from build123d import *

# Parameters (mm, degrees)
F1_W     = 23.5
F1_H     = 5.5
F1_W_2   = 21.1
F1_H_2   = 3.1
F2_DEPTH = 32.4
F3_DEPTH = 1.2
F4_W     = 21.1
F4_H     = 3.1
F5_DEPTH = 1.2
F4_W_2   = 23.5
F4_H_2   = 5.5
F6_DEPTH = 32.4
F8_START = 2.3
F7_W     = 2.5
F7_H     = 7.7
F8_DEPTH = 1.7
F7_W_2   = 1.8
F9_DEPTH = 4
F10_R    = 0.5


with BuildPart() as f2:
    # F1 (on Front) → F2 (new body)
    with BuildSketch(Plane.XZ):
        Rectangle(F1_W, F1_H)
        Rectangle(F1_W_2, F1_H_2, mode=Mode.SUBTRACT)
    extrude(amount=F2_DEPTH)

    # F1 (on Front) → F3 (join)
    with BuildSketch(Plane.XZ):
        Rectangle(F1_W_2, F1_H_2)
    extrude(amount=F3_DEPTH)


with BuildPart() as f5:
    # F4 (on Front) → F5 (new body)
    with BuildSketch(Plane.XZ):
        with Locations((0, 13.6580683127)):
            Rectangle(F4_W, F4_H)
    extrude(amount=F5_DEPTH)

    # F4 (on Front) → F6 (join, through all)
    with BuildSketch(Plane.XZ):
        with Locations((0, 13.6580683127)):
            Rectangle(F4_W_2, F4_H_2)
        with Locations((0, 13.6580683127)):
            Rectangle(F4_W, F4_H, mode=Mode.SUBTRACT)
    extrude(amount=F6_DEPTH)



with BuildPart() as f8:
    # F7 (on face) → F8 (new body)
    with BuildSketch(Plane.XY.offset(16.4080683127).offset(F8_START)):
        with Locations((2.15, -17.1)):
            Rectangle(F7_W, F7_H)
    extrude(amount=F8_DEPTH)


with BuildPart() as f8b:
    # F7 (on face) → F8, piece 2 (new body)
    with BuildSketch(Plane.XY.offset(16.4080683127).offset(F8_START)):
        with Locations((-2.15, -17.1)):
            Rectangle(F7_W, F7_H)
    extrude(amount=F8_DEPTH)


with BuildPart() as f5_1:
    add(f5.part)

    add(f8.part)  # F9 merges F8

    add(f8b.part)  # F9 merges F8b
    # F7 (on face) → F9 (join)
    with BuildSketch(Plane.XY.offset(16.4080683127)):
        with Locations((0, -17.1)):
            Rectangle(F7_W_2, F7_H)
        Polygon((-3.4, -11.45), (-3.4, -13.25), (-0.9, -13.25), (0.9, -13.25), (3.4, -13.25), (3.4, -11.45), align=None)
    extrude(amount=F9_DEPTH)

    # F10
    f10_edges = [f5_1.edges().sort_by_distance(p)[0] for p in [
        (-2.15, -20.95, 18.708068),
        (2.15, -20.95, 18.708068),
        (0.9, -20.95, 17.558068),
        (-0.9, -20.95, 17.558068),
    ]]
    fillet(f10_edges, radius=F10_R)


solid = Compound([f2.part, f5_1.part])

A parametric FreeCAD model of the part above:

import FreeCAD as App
import Part
import Sketcher


def edges_at(feature, points):
    """Names of the edges that pass closest to the given points."""
    edges = feature.Shape.Edges
    near = lambda p: min(range(len(edges)), key=lambda i: edges[i].distToShape(Part.Vertex(*p))[0])
    return sorted({f"Edge{near(p) + 1}" for p in points})


def add_polygon(sketch, points):
    """Adds a closed chain of lines whose ends are joined by coincident constraints."""
    first, n = sketch.GeometryCount, len(points)
    for a, b in zip(points, points[1:] + points[:1]):
        sketch.addGeometry(Part.LineSegment(App.Vector(*a, 0), App.Vector(*b, 0)), False)
    for i in range(n):
        sketch.addConstraint(Sketcher.Constraint("Coincident", first + i, 2, first + (i + 1) % n, 1))

doc = App.newDocument("Part")
body = doc.addObject("PartDesign::Body", "Body")

# Sketch on XZ plane
sketch1 = doc.addObject("Sketcher::SketchObject", "Sketch")
body.addObject(sketch1)
sketch1.AttachmentSupport = (doc.XZ_Plane, [""])
sketch1.MapMode = "FlatFace"
add_polygon(sketch1, [(-11.8, 2.8), (-11.8, -2.8), (11.8, -2.8), (11.8, 2.8)])  # lines 0-3
add_polygon(sketch1, [(10.6, -1.6), (-10.6, -1.6), (-10.6, 1.6), (10.6, 1.6)])  # lines 4-7
sketch1.addConstraint(Sketcher.Constraint("Vertical", 0))
sketch1.addConstraint(Sketcher.Constraint("Horizontal", 1))
sketch1.addConstraint(Sketcher.Constraint("Vertical", 2))
sketch1.addConstraint(Sketcher.Constraint("Horizontal", 3))
sketch1.addConstraint(Sketcher.Constraint("Horizontal", 4))
sketch1.addConstraint(Sketcher.Constraint("Vertical", 5))
sketch1.addConstraint(Sketcher.Constraint("Horizontal", 6))
sketch1.addConstraint(Sketcher.Constraint("Vertical", 7))
sketch1.addConstraint(Sketcher.Constraint("Symmetric", 0, 2, 2, 2, -1, 1))
sketch1.addConstraint(Sketcher.Constraint("Symmetric", 4, 2, 6, 2, -1, 1))
sketch1.addConstraint(Sketcher.Constraint("DistanceX", 1, 1, 1, 2, 23.5))
sketch1.addConstraint(Sketcher.Constraint("DistanceX", 4, 2, 4, 1, 21.1))
sketch1.addConstraint(Sketcher.Constraint("DistanceY", 0, 2, 0, 1, 5.5))
sketch1.addConstraint(Sketcher.Constraint("DistanceY", 5, 1, 5, 2, 3.1))
pad1 = doc.addObject("PartDesign::Pad", "Pad")
body.addObject(pad1)
pad1.Profile = sketch1
pad1.Length = 32.4

# Sketch on XZ plane
sketch2 = doc.addObject("Sketcher::SketchObject", "Sketch001")
body.addObject(sketch2)
sketch2.AttachmentSupport = (doc.XZ_Plane, [""])
sketch2.MapMode = "FlatFace"
add_polygon(sketch2, [(-10.6, 1.6), (-10.6, -1.6), (10.6, -1.6), (10.6, 1.6)])  # lines 0-3
sketch2.addConstraint(Sketcher.Constraint("Vertical", 0))
sketch2.addConstraint(Sketcher.Constraint("Horizontal", 1))
sketch2.addConstraint(Sketcher.Constraint("Vertical", 2))
sketch2.addConstraint(Sketcher.Constraint("Horizontal", 3))
sketch2.addConstraint(Sketcher.Constraint("Symmetric", 0, 2, 2, 2, -1, 1))
sketch2.addConstraint(Sketcher.Constraint("DistanceX", 1, 1, 1, 2, 21.1))
sketch2.addConstraint(Sketcher.Constraint("DistanceY", 0, 2, 0, 1, 3.1))
pad2 = doc.addObject("PartDesign::Pad", "Pad001")
body.addObject(pad2)
pad2.Profile = sketch2
pad2.Length = 1.2
body2 = doc.addObject("PartDesign::Body", "Body001")

# Sketch on XZ plane
sketch3 = doc.addObject("Sketcher::SketchObject", "Sketch002")
body2.addObject(sketch3)
sketch3.AttachmentSupport = (doc.getObject("XZ_Plane001"), [""])
sketch3.MapMode = "FlatFace"
add_polygon(sketch3, [(-10.6, 15.2), (-10.6, 12.1), (10.6, 12.1), (10.6, 15.2)])  # lines 0-3
sketch3.addConstraint(Sketcher.Constraint("Vertical", 0))
sketch3.addConstraint(Sketcher.Constraint("Horizontal", 1))
sketch3.addConstraint(Sketcher.Constraint("Vertical", 2))
sketch3.addConstraint(Sketcher.Constraint("Horizontal", 3))
sketch3.addConstraint(Sketcher.Constraint("DistanceX", 1, 1, 1, 2, 21.1))
sketch3.addConstraint(Sketcher.Constraint("DistanceY", 0, 2, 0, 1, 3.1))
sketch3.addConstraint(Sketcher.Constraint("DistanceX", 0, 2, -1, 1, 10.55))
sketch3.addConstraint(Sketcher.Constraint("DistanceY", -1, 1, 0, 2, 12.108068))
pad3 = doc.addObject("PartDesign::Pad", "Pad002")
body2.addObject(pad3)
pad3.Profile = sketch3
pad3.Length = 1.2

# Sketch on XZ plane
sketch4 = doc.addObject("Sketcher::SketchObject", "Sketch003")
body2.addObject(sketch4)
sketch4.AttachmentSupport = (doc.getObject("XZ_Plane001"), [""])
sketch4.MapMode = "FlatFace"
add_polygon(sketch4, [(-11.8, 16.4), (-11.8, 10.9), (11.8, 10.9), (11.8, 16.4)])  # lines 0-3
add_polygon(sketch4, [(10.6, 12.1), (-10.6, 12.1), (-10.6, 15.2), (10.6, 15.2)])  # lines 4-7
sketch4.addConstraint(Sketcher.Constraint("Vertical", 0))
sketch4.addConstraint(Sketcher.Constraint("Horizontal", 1))
sketch4.addConstraint(Sketcher.Constraint("Vertical", 2))
sketch4.addConstraint(Sketcher.Constraint("Horizontal", 3))
sketch4.addConstraint(Sketcher.Constraint("Horizontal", 4))
sketch4.addConstraint(Sketcher.Constraint("Vertical", 5))
sketch4.addConstraint(Sketcher.Constraint("Horizontal", 6))
sketch4.addConstraint(Sketcher.Constraint("Vertical", 7))
sketch4.addConstraint(Sketcher.Constraint("DistanceX", 1, 1, 1, 2, 23.5))
sketch4.addConstraint(Sketcher.Constraint("DistanceX", 4, 2, 4, 1, 21.1))
sketch4.addConstraint(Sketcher.Constraint("DistanceY", 0, 2, 0, 1, 5.5))
sketch4.addConstraint(Sketcher.Constraint("DistanceY", 5, 1, 5, 2, 3.1))
sketch4.addConstraint(Sketcher.Constraint("DistanceX", 0, 2, 4, 2, 1.2))
sketch4.addConstraint(Sketcher.Constraint("DistanceY", 0, 2, 4, 2, 1.2))
sketch4.addConstraint(Sketcher.Constraint("DistanceX", 0, 2, -1, 1, 11.75))
sketch4.addConstraint(Sketcher.Constraint("DistanceY", -1, 1, 0, 2, 10.908068))
pad4 = doc.addObject("PartDesign::Pad", "Pad003")
body2.addObject(pad4)
pad4.Profile = sketch4
pad4.Length = 32.4
body3 = doc.addObject("PartDesign::Body", "Body002")

# Sketch on XY plane
sketch5 = doc.addObject("Sketcher::SketchObject", "Sketch004")
body3.addObject(sketch5)
sketch5.AttachmentSupport = (doc.getObject("XY_Plane002"), [""])
sketch5.MapMode = "FlatFace"
sketch5.AttachmentOffset = App.Placement(App.Vector(0, 0, 18.708068), App.Rotation())
add_polygon(sketch5, [(0.9, -13.2), (0.9, -20.9), (3.4, -20.9), (3.4, -13.2)])  # lines 0-3
sketch5.addConstraint(Sketcher.Constraint("Vertical", 0))
sketch5.addConstraint(Sketcher.Constraint("Horizontal", 1))
sketch5.addConstraint(Sketcher.Constraint("Vertical", 2))
sketch5.addConstraint(Sketcher.Constraint("Horizontal", 3))
sketch5.addConstraint(Sketcher.Constraint("DistanceX", 1, 1, 1, 2, 2.5))
sketch5.addConstraint(Sketcher.Constraint("DistanceY", 0, 2, 0, 1, 7.7))
sketch5.addConstraint(Sketcher.Constraint("DistanceX", -1, 1, 0, 2, 0.9))
sketch5.addConstraint(Sketcher.Constraint("DistanceY", 0, 2, -1, 1, 20.95))
pad5 = doc.addObject("PartDesign::Pad", "Pad004")
body3.addObject(pad5)
pad5.Profile = sketch5
pad5.Length = 1.7
body4 = doc.addObject("PartDesign::Body", "Body003")

# Sketch on XY plane
sketch6 = doc.addObject("Sketcher::SketchObject", "Sketch005")
body4.addObject(sketch6)
sketch6.AttachmentSupport = (doc.getObject("XY_Plane003"), [""])
sketch6.MapMode = "FlatFace"
sketch6.AttachmentOffset = App.Placement(App.Vector(0, 0, 18.708068), App.Rotation())
add_polygon(sketch6, [(-3.4, -13.2), (-3.4, -20.9), (-0.9, -20.9), (-0.9, -13.2)])  # lines 0-3
sketch6.addConstraint(Sketcher.Constraint("Vertical", 0))
sketch6.addConstraint(Sketcher.Constraint("Horizontal", 1))
sketch6.addConstraint(Sketcher.Constraint("Vertical", 2))
sketch6.addConstraint(Sketcher.Constraint("Horizontal", 3))
sketch6.addConstraint(Sketcher.Constraint("DistanceX", 1, 1, 1, 2, 2.5))
sketch6.addConstraint(Sketcher.Constraint("DistanceY", 0, 2, 0, 1, 7.7))
sketch6.addConstraint(Sketcher.Constraint("DistanceX", 0, 2, -1, 1, 3.4))
sketch6.addConstraint(Sketcher.Constraint("DistanceY", 0, 2, -1, 1, 20.95))
pad6 = doc.addObject("PartDesign::Pad", "Pad005")
body4.addObject(pad6)
pad6.Profile = sketch6
pad6.Length = 1.7
body2.AllowCompound = True
doc.recompute()

boolean = doc.addObject("PartDesign::Boolean", "Boolean")
body2.addObject(boolean)
boolean.Type = "Fuse"
boolean.addObjects([body3])
doc.recompute()

boolean2 = doc.addObject("PartDesign::Boolean", "Boolean001")
body2.addObject(boolean2)
boolean2.Type = "Fuse"
boolean2.addObjects([body4])

# Sketch on XY plane
sketch7 = doc.addObject("Sketcher::SketchObject", "Sketch006")
body2.addObject(sketch7)
sketch7.AttachmentSupport = (doc.getObject("XY_Plane001"), [""])
sketch7.MapMode = "FlatFace"
sketch7.AttachmentOffset = App.Placement(App.Vector(0, 0, 16.408068), App.Rotation())
add_polygon(sketch7, [(-0.9, -13.2), (-0.9, -20.9), (0.9, -20.9), (0.9, -13.2), (3.4, -13.2), (3.4, -11.4), (-3.4, -11.4), (-3.4, -13.2)])  # lines 0-7
sketch7.addConstraint(Sketcher.Constraint("Vertical", 0))
sketch7.addConstraint(Sketcher.Constraint("Horizontal", 1))
sketch7.addConstraint(Sketcher.Constraint("Vertical", 2))
sketch7.addConstraint(Sketcher.Constraint("Horizontal", 3))
sketch7.addConstraint(Sketcher.Constraint("Vertical", 4))
sketch7.addConstraint(Sketcher.Constraint("Horizontal", 5))
sketch7.addConstraint(Sketcher.Constraint("Vertical", 6))
sketch7.addConstraint(Sketcher.Constraint("Horizontal", 7))
sketch7.addConstraint(Sketcher.Constraint("Symmetric", 3, 2, 6, 2, -2))
sketch7.addConstraint(Sketcher.Constraint("Equal", 3, 7))
sketch7.addConstraint(Sketcher.Constraint("Equal", 1, 4))
sketch7.addConstraint(Sketcher.Constraint("DistanceX", 1, 1, 1, 2, 1.8))
sketch7.addConstraint(Sketcher.Constraint("DistanceX", 3, 1, 3, 2, 2.5))
sketch7.addConstraint(Sketcher.Constraint("DistanceY", 0, 2, 0, 1, 7.7))
sketch7.addConstraint(Sketcher.Constraint("DistanceY", 0, 2, -1, 1, 20.95))
pad7 = doc.addObject("PartDesign::Pad", "Pad006")
body2.addObject(pad7)
pad7.Profile = sketch7
pad7.Length = 4
doc.recompute()

fillet = doc.addObject("PartDesign::Fillet", "Fillet")
body2.addObject(fillet)
fillet.Base = (pad7, edges_at(pad7, [
    (-2.15, -20.95, 18.708),
    (2.15, -20.95, 18.708),
    (0.9, -20.95, 17.558),
    (-0.9, -20.95, 17.558),
]))
fillet.Radius = 0.5

doc.recompute()
